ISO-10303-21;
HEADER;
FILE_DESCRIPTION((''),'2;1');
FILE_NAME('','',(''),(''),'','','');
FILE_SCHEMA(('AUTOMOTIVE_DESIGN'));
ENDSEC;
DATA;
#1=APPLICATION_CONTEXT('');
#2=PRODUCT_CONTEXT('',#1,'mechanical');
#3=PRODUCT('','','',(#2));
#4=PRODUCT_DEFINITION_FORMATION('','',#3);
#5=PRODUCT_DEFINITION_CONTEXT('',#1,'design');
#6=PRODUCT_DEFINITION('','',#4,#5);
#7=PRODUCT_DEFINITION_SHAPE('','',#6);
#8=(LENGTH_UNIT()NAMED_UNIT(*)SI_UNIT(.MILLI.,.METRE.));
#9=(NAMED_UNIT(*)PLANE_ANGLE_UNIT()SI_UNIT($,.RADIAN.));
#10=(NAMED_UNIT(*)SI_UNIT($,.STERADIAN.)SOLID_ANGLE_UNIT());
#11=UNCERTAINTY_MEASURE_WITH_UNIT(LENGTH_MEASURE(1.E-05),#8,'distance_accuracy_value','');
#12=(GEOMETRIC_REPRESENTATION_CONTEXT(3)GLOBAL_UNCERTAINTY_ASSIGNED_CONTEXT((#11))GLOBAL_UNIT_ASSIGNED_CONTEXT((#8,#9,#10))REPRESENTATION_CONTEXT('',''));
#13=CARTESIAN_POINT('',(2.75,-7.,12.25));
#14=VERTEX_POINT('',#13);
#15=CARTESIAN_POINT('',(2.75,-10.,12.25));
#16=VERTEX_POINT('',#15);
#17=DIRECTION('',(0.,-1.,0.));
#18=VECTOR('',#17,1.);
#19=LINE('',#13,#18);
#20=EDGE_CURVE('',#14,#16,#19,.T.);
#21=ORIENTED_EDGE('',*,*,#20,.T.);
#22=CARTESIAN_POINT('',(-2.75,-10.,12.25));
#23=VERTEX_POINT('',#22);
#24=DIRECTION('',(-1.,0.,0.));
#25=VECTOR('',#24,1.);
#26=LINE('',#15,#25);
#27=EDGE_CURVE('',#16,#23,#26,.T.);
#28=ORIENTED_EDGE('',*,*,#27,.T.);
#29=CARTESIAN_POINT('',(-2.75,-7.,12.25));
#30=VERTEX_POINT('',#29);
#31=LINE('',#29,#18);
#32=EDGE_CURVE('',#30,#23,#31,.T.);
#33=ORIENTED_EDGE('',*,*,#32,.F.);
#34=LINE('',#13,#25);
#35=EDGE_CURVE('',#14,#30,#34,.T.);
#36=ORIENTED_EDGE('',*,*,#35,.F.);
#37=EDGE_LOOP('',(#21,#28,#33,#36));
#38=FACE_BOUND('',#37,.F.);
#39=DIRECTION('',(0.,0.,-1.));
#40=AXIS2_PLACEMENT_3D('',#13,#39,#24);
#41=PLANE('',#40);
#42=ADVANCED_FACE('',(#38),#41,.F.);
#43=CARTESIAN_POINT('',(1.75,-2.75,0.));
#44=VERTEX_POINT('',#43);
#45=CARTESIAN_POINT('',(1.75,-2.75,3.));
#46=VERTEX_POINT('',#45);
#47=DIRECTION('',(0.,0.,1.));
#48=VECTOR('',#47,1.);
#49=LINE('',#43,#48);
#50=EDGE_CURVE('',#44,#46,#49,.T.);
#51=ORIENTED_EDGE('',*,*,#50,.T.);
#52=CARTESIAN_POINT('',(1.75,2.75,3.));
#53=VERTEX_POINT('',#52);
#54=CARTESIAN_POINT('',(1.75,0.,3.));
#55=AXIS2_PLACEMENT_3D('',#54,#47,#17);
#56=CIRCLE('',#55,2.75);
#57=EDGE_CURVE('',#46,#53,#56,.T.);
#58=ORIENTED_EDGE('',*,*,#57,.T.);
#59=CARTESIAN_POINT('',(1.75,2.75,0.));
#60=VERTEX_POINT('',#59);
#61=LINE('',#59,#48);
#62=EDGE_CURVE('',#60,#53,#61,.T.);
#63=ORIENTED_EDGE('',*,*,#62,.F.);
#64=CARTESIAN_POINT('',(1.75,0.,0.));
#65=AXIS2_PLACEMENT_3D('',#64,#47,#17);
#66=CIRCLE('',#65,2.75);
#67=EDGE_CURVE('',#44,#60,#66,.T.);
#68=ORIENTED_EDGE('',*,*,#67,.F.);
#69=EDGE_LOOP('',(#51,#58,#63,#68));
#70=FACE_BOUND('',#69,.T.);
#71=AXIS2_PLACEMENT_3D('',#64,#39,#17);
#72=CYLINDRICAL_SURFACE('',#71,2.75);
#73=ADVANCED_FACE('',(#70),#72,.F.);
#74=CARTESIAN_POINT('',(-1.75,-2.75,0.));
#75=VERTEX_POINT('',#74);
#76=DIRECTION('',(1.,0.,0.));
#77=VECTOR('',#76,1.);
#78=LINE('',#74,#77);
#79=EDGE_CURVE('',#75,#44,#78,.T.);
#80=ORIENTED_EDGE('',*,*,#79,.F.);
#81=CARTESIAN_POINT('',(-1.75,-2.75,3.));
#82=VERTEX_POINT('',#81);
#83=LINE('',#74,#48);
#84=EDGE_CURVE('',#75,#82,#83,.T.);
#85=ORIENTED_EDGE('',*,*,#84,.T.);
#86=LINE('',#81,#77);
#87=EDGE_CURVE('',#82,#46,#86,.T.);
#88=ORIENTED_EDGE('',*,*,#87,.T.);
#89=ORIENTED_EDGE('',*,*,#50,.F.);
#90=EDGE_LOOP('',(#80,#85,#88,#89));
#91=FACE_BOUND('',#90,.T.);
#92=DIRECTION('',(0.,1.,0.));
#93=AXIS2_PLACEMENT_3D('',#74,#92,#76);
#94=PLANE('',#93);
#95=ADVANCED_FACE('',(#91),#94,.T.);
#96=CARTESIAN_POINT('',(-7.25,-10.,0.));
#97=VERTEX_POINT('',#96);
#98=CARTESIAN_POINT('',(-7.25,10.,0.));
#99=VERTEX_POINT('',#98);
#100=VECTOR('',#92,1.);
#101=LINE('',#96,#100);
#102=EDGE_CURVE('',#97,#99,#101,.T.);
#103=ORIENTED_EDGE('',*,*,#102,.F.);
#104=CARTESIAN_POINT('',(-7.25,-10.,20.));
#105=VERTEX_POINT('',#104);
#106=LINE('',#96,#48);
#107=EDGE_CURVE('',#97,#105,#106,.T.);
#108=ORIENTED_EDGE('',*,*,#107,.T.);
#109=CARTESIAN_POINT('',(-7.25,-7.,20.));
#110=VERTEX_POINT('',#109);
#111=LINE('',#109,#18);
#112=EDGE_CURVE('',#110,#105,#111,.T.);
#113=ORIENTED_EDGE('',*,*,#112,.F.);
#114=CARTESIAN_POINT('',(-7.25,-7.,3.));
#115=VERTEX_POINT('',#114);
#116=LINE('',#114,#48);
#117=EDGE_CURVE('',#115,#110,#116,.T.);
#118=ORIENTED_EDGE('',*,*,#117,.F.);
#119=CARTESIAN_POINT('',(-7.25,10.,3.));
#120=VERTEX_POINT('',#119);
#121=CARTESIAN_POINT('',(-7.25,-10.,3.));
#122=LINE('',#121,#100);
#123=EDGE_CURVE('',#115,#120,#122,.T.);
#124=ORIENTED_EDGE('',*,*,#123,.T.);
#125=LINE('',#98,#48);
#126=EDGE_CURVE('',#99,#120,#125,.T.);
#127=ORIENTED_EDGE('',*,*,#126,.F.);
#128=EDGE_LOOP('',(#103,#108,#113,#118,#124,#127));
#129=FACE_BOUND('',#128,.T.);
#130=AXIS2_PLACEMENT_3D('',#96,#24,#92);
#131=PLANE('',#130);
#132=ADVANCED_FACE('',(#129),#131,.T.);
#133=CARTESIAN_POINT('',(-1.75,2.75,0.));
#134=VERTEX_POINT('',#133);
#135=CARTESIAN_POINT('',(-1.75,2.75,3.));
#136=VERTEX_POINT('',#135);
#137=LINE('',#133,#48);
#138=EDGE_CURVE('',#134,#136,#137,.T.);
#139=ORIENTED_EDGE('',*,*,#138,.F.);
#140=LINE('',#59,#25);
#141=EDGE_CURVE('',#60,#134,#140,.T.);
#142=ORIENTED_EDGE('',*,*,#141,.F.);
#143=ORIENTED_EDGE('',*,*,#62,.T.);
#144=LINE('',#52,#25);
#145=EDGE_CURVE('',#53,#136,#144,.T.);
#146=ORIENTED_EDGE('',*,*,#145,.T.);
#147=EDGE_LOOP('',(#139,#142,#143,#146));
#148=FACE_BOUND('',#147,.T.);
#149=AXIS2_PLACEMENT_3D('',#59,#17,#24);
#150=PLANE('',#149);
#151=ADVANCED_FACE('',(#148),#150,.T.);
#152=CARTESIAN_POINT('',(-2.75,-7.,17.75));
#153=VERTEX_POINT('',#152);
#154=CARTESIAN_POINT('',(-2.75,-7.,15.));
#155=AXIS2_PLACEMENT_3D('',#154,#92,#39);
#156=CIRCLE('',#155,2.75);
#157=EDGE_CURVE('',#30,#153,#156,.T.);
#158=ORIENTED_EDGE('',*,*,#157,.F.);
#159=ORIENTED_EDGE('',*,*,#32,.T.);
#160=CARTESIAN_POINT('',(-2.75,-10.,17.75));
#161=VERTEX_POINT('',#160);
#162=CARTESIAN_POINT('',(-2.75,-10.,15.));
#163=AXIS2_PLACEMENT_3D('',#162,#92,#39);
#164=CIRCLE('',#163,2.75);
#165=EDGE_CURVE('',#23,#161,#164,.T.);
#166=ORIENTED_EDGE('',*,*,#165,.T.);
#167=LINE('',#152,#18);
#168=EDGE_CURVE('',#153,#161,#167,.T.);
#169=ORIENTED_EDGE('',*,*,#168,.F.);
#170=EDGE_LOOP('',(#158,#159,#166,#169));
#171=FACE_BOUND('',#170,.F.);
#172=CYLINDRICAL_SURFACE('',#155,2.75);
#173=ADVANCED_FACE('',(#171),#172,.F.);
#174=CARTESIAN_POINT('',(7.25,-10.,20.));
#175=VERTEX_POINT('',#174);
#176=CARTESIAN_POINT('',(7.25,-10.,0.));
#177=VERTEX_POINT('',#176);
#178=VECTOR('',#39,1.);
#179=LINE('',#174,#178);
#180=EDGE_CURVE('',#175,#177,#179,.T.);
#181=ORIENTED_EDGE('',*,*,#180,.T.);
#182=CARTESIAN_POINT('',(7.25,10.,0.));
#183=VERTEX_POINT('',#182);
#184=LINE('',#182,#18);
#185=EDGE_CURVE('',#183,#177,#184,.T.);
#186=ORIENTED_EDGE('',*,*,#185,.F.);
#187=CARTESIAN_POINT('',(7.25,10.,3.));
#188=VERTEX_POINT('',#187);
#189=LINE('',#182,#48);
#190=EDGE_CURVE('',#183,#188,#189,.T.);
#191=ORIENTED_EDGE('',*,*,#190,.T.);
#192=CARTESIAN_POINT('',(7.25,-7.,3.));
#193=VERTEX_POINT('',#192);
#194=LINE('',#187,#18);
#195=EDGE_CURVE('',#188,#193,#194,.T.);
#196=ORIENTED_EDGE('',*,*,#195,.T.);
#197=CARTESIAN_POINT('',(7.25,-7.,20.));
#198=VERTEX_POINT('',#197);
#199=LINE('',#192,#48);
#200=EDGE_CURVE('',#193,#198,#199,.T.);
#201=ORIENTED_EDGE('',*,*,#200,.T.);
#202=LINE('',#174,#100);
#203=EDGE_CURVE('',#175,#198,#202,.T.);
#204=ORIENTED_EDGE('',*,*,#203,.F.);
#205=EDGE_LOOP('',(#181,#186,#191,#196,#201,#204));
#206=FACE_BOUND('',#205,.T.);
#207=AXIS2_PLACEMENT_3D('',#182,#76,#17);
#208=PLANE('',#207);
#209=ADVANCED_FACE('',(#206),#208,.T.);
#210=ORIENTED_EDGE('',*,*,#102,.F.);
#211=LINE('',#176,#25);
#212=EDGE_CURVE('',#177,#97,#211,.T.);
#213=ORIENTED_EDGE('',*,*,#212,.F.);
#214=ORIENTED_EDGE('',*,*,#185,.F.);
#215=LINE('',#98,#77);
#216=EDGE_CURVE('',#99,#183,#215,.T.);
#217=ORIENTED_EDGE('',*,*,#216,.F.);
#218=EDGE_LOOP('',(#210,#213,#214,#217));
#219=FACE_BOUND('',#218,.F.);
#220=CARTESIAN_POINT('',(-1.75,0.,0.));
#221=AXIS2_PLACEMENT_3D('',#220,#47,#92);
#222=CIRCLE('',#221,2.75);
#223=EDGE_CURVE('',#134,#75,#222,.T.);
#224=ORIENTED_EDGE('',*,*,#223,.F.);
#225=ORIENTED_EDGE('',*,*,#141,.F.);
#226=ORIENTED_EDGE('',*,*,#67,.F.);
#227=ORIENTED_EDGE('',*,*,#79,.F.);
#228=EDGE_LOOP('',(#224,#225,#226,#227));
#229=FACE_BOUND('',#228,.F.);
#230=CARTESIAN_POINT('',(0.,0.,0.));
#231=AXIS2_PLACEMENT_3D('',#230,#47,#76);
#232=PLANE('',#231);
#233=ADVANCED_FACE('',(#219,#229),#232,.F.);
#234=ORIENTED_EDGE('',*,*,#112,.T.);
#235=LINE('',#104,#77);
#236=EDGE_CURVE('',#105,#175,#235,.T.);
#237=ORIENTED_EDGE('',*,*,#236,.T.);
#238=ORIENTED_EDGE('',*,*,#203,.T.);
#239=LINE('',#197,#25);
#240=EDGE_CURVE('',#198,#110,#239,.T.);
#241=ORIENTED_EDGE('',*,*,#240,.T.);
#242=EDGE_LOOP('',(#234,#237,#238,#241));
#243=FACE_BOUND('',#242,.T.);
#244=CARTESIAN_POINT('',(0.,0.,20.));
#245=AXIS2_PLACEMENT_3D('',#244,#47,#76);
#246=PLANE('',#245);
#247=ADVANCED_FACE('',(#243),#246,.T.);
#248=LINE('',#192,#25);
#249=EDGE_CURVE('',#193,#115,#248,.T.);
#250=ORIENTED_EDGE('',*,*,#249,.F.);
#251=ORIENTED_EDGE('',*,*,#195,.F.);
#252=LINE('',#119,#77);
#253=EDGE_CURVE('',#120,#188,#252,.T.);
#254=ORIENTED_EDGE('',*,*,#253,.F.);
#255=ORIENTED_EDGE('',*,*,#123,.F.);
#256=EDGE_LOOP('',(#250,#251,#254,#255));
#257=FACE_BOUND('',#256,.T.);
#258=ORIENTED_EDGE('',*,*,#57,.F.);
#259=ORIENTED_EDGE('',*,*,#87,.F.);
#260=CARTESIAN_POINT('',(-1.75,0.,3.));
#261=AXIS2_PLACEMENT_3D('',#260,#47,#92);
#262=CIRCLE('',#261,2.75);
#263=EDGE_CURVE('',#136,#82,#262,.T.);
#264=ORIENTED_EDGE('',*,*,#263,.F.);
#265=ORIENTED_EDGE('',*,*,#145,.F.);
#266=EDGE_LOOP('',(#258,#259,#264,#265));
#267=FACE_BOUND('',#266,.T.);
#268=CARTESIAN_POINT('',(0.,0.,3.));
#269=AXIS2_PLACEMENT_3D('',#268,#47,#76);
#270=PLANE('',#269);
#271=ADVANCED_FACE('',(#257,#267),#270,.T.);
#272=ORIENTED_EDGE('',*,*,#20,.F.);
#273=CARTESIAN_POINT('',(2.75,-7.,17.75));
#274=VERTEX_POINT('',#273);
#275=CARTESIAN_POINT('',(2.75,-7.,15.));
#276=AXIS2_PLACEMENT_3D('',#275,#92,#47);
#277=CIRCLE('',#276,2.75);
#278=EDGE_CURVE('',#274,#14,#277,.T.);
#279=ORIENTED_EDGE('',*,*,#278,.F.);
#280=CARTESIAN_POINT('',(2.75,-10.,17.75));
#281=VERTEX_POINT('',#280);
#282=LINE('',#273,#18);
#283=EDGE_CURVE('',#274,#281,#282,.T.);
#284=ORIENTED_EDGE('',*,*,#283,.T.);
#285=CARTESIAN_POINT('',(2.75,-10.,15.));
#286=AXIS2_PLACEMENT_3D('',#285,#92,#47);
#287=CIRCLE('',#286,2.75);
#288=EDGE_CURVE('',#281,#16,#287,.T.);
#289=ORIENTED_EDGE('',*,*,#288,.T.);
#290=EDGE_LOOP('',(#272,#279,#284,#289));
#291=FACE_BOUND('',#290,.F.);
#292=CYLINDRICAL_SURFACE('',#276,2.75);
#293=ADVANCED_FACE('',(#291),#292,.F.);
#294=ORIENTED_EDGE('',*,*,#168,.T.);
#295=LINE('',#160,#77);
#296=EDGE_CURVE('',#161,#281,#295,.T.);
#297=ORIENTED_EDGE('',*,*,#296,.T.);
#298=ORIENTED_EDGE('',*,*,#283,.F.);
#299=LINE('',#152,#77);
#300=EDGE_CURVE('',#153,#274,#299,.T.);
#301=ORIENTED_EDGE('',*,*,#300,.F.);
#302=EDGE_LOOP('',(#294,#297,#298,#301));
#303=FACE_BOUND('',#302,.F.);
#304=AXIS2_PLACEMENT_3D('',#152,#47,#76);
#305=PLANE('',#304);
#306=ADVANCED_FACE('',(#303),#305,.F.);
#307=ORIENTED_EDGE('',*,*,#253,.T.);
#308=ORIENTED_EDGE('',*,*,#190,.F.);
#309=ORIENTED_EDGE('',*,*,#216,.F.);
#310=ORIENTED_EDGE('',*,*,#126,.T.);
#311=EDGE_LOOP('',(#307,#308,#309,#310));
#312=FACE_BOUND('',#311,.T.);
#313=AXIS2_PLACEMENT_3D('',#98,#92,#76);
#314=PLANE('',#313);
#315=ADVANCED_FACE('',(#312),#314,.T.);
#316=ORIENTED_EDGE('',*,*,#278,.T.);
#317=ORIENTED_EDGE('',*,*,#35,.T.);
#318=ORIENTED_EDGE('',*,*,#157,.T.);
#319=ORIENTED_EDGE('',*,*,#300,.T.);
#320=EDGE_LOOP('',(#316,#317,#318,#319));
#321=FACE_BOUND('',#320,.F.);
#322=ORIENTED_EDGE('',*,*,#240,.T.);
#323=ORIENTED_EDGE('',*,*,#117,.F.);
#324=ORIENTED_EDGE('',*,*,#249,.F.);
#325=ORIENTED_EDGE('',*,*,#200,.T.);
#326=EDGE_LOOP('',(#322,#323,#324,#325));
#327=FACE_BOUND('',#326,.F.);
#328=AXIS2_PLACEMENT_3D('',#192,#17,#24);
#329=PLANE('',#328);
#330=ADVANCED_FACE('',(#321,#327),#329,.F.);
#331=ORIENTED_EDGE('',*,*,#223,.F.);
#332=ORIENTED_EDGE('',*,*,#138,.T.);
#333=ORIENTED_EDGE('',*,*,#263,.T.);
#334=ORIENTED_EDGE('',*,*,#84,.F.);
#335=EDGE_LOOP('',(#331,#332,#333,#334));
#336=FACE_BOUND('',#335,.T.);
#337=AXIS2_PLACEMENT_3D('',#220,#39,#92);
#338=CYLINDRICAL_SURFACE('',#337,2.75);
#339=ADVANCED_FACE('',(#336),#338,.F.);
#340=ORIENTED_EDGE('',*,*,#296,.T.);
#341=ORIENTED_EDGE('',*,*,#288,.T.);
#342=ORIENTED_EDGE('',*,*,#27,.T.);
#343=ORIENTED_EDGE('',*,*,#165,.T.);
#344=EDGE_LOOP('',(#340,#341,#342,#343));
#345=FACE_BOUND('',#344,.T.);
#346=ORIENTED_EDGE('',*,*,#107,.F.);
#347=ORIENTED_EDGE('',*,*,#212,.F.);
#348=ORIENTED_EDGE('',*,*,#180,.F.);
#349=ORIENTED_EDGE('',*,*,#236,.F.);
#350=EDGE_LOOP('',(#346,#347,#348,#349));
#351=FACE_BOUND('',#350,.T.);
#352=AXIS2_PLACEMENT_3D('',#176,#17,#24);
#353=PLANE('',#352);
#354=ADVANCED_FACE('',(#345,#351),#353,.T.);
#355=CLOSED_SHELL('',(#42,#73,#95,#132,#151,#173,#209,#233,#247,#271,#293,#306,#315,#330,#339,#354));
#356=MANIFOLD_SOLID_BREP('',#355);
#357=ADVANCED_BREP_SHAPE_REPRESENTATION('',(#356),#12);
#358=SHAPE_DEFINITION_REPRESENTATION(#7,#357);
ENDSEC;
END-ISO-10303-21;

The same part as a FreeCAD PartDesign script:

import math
import FreeCAD as App
import Part
import Sketcher
from FreeCAD import Vector


def add_polygon(sketch, points):
    """Adds a closed chain of lines whose ends are joined by coincident constraints."""
    first, n = sketch.GeometryCount, len(points)
    for a, b in zip(points, points[1:] + points[:1]):
        sketch.addGeometry(Part.LineSegment(App.Vector(*a, 0), App.Vector(*b, 0)), False)
    for i in range(n):
        sketch.addConstraint(Sketcher.Constraint("Coincident", first + i, 2, first + (i + 1) % n, 1))

doc = App.newDocument("Part")
body = doc.addObject("PartDesign::Body", "Body")

# Sketch on XY plane
sketch1 = doc.addObject("Sketcher::SketchObject", "Sketch")
body.addObject(sketch1)
sketch1.AttachmentSupport = (doc.XY_Plane, [""])
sketch1.MapMode = "FlatFace"
add_polygon(sketch1, [(7.2, 10), (-7.2, 10), (-7.2, -10), (7.2, -10)])  # lines 0-3
sketch1.addGeometry(Part.LineSegment(Vector(1.8, -2.8, 0), Vector(-1.8, -2.8, 0)), False)  # 4
sketch1.addGeometry(Part.ArcOfCircle(Part.Circle(Vector(-1.8, 0, 0), Vector(0, 0, 1), 2.8), math.radians(90), math.radians(270)), False)  # 5
sketch1.addGeometry(Part.LineSegment(Vector(-1.8, 2.8, 0), Vector(1.8, 2.8, 0)), False)  # 6
sketch1.addGeometry(Part.ArcOfCircle(Part.Circle(Vector(1.8, 0, 0), Vector(0, 0, 1), 2.8), math.radians(-90), math.radians(90)), False)  # 7
sketch1.addConstraint([
    Sketcher.Constraint("Tangent", 4, 2, 5, 2),
    Sketcher.Constraint("Tangent", 5, 1, 6, 1),
    Sketcher.Constraint("Tangent", 6, 2, 7, 2),
    Sketcher.Constraint("Tangent", 7, 1, 4, 1),
    Sketcher.Constraint("Horizontal", 0),
    Sketcher.Constraint("Vertical", 1),
    Sketcher.Constraint("Horizontal", 2),
    Sketcher.Constraint("Vertical", 3),
    Sketcher.Constraint("Horizontal", 4),
    Sketcher.Constraint("Horizontal", 6),
    Sketcher.Constraint("Symmetric", 5, 3, 7, 3, -1, 1),
    Sketcher.Constraint("Symmetric", 0, 2, 2, 2, -1, 1),
    Sketcher.Constraint("DistanceY", 1, 2, 1, 1, 20.0),
    Sketcher.Constraint("Radius", 5, 2.75),
    Sketcher.Constraint("DistanceX", 0, 2, 0, 1, 14.5),
    Sketcher.Constraint("DistanceX", 4, 2, 4, 1, 3.5),
])
pad1 = doc.addObject("PartDesign::Pad", "Pad")
body.addObject(pad1)
pad1.Profile = sketch1
pad1.Length = 3

# Sketch on XY plane
sketch2 = doc.addObject("Sketcher::SketchObject", "Sketch001")
body.addObject(sketch2)
sketch2.AttachmentSupport = (doc.XY_Plane, [""])
sketch2.MapMode = "FlatFace"
sketch2.AttachmentOffset = App.Placement(Vector(0, 0, 3), App.Rotation())
add_polygon(sketch2, [(-7.2, -10), (7.2, -10), (7.2, -7), (-7.2, -7)])  # lines 0-3
sketch2.addConstraint([
    Sketcher.Constraint("Horizontal", 0),
    Sketcher.Constraint("Vertical", 1),
    Sketcher.Constraint("Horizontal", 2),
    Sketcher.Constraint("Vertical", 3),
    Sketcher.Constraint("DistanceY", 1, 1, 1, 2, 3.0),
    Sketcher.Constraint("DistanceX", 0, 1, 0, 2, 14.5),
    Sketcher.Constraint("DistanceY", 0, 2, -1, 1, 10.0),
    Sketcher.Constraint("DistanceX", -1, 1, 0, 2, 7.25),
])
pad2 = doc.addObject("PartDesign::Pad", "Pad001")
body.addObject(pad2)
pad2.Profile = sketch2
pad2.Length = 17

# Sketch on XZ plane
sketch3 = doc.addObject("Sketcher::SketchObject", "Sketch002")
body.addObject(sketch3)
sketch3.AttachmentSupport = (doc.XZ_Plane, [""])
sketch3.MapMode = "FlatFace"
sketch3.AttachmentOffset = App.Placement(Vector(0, 0, 7), App.Rotation())
sketch3.addGeometry([
    Part.ArcOfCircle(Part.Circle(Vector(-2.8, 15, 0), Vector(0, 0, 1), 2.8), math.radians(90), math.radians(270)),
    Part.LineSegment(Vector(-2.8, 17.8, 0), Vector(2.8, 17.8, 0)),
    Part.ArcOfCircle(Part.Circle(Vector(2.8, 15, 0), Vector(0, 0, 1), 2.8), math.radians(-90), math.radians(90)),
    Part.LineSegment(Vector(2.8, 12.2, 0), Vector(-2.8, 12.2, 0)),
], False)
sketch3.addConstraint([
    Sketcher.Constraint("Tangent", 0, 1, 1, 1),
    Sketcher.Constraint("Tangent", 1, 2, 2, 2),
    Sketcher.Constraint("Tangent", 2, 1, 3, 1),
    Sketcher.Constraint("Tangent", 3, 2, 0, 2),
    Sketcher.Constraint("Horizontal", 1),
    Sketcher.Constraint("Horizontal", 3),
    Sketcher.Constraint("Radius", 0, 2.75),
    Sketcher.Constraint("DistanceX", 1, 1, 1, 2, 5.5),
    Sketcher.Constraint("DistanceY", -1, 1, 0, 3, 15.0),
    Sketcher.Constraint("DistanceX", 0, 3, -1, 1, 2.75),
])
pocket1 = doc.addObject("PartDesign::Pocket", "Pocket")
body.addObject(pocket1)
pocket1.Profile = sketch3
pocket1.Length = 3
pocket1.Reversed = True

doc.recompute()
